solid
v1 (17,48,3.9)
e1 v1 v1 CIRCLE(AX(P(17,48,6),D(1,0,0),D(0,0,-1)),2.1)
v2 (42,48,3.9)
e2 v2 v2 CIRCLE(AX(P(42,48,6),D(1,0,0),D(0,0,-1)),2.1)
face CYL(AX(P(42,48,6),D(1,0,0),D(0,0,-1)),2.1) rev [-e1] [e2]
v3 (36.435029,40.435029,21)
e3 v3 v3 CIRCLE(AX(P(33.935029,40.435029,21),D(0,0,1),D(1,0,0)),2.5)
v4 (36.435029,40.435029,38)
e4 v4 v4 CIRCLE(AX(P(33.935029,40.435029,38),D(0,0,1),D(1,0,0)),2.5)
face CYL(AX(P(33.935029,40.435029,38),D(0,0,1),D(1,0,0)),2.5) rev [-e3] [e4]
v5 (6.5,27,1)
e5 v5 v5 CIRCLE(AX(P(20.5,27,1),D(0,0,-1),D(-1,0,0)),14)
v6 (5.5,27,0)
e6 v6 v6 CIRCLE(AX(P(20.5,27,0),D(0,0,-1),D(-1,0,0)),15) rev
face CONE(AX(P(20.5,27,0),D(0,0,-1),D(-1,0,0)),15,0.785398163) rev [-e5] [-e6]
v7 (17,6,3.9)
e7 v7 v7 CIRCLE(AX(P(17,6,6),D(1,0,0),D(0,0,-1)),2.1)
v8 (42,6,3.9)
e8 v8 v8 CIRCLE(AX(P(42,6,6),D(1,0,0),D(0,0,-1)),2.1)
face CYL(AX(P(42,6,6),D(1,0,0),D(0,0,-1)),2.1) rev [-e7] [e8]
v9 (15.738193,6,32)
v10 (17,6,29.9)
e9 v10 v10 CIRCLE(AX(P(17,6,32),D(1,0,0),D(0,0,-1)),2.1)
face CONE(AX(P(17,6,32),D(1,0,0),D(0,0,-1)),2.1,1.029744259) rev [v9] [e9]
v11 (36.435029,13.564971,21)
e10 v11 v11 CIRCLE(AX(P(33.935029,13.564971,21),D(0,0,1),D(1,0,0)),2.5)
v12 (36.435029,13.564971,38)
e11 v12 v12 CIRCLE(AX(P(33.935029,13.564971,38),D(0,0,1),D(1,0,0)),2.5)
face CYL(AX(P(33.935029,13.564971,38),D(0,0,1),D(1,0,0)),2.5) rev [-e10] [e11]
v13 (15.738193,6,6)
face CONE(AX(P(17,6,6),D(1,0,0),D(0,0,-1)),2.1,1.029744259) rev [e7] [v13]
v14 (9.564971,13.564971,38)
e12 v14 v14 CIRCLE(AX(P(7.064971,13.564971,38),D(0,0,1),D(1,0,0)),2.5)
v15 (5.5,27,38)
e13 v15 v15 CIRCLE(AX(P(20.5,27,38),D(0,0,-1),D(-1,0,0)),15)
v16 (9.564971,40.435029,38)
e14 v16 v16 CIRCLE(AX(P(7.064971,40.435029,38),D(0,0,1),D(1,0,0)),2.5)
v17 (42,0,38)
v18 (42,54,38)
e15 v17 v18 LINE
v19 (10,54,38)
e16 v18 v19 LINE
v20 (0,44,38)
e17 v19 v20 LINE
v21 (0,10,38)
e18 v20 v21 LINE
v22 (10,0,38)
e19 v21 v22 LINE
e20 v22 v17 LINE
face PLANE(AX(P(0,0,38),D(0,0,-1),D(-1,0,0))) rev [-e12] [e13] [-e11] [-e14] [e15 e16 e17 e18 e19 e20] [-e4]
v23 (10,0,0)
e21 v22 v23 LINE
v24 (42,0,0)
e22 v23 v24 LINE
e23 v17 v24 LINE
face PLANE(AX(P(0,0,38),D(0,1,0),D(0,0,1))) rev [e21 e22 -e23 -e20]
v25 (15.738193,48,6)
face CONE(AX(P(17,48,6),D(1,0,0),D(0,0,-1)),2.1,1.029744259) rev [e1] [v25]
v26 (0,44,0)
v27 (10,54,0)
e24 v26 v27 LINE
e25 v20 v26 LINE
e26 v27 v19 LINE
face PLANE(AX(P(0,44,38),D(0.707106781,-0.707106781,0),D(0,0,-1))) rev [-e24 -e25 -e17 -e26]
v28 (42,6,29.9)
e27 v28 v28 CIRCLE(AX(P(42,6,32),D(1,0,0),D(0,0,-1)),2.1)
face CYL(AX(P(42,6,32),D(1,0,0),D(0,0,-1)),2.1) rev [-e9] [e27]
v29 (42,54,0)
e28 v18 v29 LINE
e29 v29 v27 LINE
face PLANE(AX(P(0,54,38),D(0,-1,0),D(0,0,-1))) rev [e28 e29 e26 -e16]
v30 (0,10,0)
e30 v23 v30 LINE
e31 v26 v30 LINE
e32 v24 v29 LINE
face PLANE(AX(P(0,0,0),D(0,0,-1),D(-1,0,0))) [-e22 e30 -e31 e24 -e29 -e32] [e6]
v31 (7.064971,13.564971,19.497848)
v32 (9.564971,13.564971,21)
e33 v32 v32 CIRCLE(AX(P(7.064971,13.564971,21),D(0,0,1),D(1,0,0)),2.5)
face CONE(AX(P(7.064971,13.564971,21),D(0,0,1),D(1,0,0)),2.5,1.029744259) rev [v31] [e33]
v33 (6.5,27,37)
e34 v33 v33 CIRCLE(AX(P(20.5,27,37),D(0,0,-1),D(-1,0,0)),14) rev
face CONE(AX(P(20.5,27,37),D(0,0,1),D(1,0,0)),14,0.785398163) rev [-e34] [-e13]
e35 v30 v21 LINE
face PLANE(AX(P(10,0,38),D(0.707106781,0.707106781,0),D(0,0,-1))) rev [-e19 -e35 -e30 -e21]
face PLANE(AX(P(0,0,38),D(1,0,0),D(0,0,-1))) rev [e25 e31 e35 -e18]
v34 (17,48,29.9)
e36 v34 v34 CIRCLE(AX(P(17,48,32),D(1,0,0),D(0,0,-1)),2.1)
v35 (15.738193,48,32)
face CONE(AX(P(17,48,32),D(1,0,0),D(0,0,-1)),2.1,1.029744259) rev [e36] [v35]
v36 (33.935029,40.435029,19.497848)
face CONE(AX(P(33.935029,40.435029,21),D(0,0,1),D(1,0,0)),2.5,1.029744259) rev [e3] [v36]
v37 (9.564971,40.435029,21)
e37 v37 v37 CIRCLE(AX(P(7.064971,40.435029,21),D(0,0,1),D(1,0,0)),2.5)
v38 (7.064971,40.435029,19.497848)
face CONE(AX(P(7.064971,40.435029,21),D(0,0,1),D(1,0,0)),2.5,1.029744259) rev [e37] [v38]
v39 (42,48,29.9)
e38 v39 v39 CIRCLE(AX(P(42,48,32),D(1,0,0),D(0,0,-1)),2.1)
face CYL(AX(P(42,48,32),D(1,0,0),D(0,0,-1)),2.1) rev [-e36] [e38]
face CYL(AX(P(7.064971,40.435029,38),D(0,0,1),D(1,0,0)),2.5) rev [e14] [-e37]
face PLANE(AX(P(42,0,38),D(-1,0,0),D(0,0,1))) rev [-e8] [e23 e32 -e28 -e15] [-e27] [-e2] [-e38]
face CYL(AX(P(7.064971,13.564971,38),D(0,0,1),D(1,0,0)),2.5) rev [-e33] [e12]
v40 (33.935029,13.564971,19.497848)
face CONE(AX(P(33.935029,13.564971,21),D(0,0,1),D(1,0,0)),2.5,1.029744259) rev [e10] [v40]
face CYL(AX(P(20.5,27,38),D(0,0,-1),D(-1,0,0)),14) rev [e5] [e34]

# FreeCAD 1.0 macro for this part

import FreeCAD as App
import Part
import Sketcher


def edges_at(feature, points):
    """Names of the edges that pass closest to the given points."""
    edges = feature.Shape.Edges
    near = lambda p: min(range(len(edges)), key=lambda i: edges[i].distToShape(Part.Vertex(*p))[0])
    return sorted({f"Edge{near(p) + 1}" for p in points})

doc = App.newDocument("Part")
body = doc.addObject("PartDesign::Body", "Body")

# Sketch on XY plane
sketch1 = body.newObject("Sketcher::SketchObject", "Sketch")
sketch1.AttachmentSupport = (doc.getObject("XY_Plane"), [""])
sketch1.MapMode = "FlatFace"
sketch1.addGeometry([
    Part.LineSegment(App.Vector(0, 54, 0), App.Vector(0, 0, 0)),  # 0
    Part.LineSegment(App.Vector(0, 0, 0), App.Vector(42, 0, 0)),  # 1
    Part.LineSegment(App.Vector(42, 0, 0), App.Vector(42, 54, 0)),  # 2
    Part.LineSegment(App.Vector(42, 54, 0), App.Vector(0, 54, 0)),  # 3
    Part.Circle(App.Vector(20.5, 27, 0), App.Vector(0, 0, 1), 14),  # 4
], False)
sketch1.addConstraint([
    Sketcher.Constraint("Coincident", 0, 2, 1, 1),
    Sketcher.Constraint("Coincident", 1, 2, 2, 1),
    Sketcher.Constraint("Coincident", 2, 2, 3, 1),
    Sketcher.Constraint("Coincident", 3, 2, 0, 1),
    Sketcher.Constraint("Vertical", 0),
    Sketcher.Constraint("Horizontal", 1),
    Sketcher.Constraint("Vertical", 2),
    Sketcher.Constraint("Horizontal", 3),
    Sketcher.Constraint("Coincident", 0, 2, -1, 1),
    Sketcher.Constraint("Diameter", 4, 28.0),
    Sketcher.Constraint("DistanceX", 1, 1, 1, 2, 42.0),
    Sketcher.Constraint("DistanceY", 0, 2, 0, 1, 54.0),
    Sketcher.Constraint("DistanceY", -1, 1, 4, 3, 27.0),
    Sketcher.Constraint("DistanceX", -1, 1, 4, 3, 20.5),
])
pad1 = body.newObject("PartDesign::Pad", "Pad")
pad1.Profile = sketch1
pad1.Length = 38
doc.recompute()

chamfer = body.newObject("PartDesign::Chamfer", "Chamfer")
chamfer.Base = (pad1, edges_at(pad1, [(6.5, 27, 0), (6.5, 27, 38)]))
chamfer.Size = 1

# Sketch on XY plane
sketch2 = body.newObject("Sketcher::SketchObject", "Sketch001")
sketch2.AttachmentSupport = (doc.getObject("XY_Plane"), [""])
sketch2.MapMode = "FlatFace"
sketch2.AttachmentOffset = App.Placement(App.Vector(0, 0, 38), App.Rotation())
sketch2.addGeometry([
    Part.Circle(App.Vector(33.935029, 40.435029, 0), App.Vector(0, 0, 1), 2.5),
    Part.Circle(App.Vector(7.064971, 40.435029, 0), App.Vector(0, 0, 1), 2.5),
    Part.Circle(App.Vector(7.064971, 13.564971, 0), App.Vector(0, 0, 1), 2.5),
    Part.Circle(App.Vector(33.935029, 13.564971, 0), App.Vector(0, 0, 1), 2.5),
], False)
sketch2.addConstraint([
    Sketcher.Constraint("Equal", 0, 1),
    Sketcher.Constraint("Equal", 1, 2),
    Sketcher.Constraint("Equal", 2, 3),
    Sketcher.Constraint("Horizontal", 0, 3, 1, 3),
    Sketcher.Constraint("Horizontal", 2, 3, 3, 3),
    Sketcher.Constraint("Vertical", 1, 3, 2, 3),
    Sketcher.Constraint("Vertical", 0, 3, 3, 3),
    Sketcher.Constraint("Diameter", 0, 5.0),
    Sketcher.Constraint("DistanceX", -1, 1, 0, 3, 33.935029),
    Sketcher.Constraint("DistanceY", -1, 1, 0, 3, 40.435029),
    Sketcher.Constraint("DistanceX", -1, 1, 1, 3, 7.064971),
    Sketcher.Constraint("DistanceY", -1, 1, 2, 3, 13.564971),
])
doc.recompute()
hole = body.newObject("PartDesign::Hole", "Hole")
hole.Profile = sketch2
hole.ThreadType = "None"
hole.Diameter = 5
hole.DepthType = "Dimension"
hole.Depth = 17
hole.DrillPoint = "Angled"
hole.DrillPointAngle = 118

# Sketch on YZ plane
sketch3 = body.newObject("Sketcher::SketchObject", "Sketch002")
sketch3.AttachmentSupport = (doc.getObject("YZ_Plane"), [""])
sketch3.MapMode = "FlatFace"
sketch3.AttachmentOffset = App.Placement(App.Vector(0, 0, 42), App.Rotation())
sketch3.addGeometry([
    Part.Circle(App.Vector(48, 32, 0), App.Vector(0, 0, 1), 2.1),
    Part.Circle(App.Vector(48, 6, 0), App.Vector(0, 0, 1), 2.1),
    Part.Circle(App.Vector(6, 6, 0), App.Vector(0, 0, 1), 2.1),
    Part.Circle(App.Vector(6, 32, 0), App.Vector(0, 0, 1), 2.1),
], False)
sketch3.addConstraint([
    Sketcher.Constraint("Equal", 0, 1),
    Sketcher.Constraint("Equal", 1, 2),
    Sketcher.Constraint("Equal", 2, 3),
    Sketcher.Constraint("Horizontal", 1, 3, 2, 3),
    Sketcher.Constraint("Horizontal", 0, 3, 3, 3),
    Sketcher.Constraint("Vertical", 0, 3, 1, 3),
    Sketcher.Constraint("Vertical", 2, 3, 3, 3),
    Sketcher.Constraint("Diameter", 0, 4.2),
    Sketcher.Constraint("DistanceX", -1, 1, 0, 3, 48.0),
    Sketcher.Constraint("DistanceY", -1, 1, 0, 3, 32.0),
    Sketcher.Constraint("DistanceY", -1, 1, 1, 3, 6.0),
    Sketcher.Constraint("DistanceX", -1, 1, 2, 3, 6.0),
])
doc.recompute()
hole2 = body.newObject("PartDesign::Hole", "Hole001")
hole2.Profile = sketch3
hole2.ThreadType = "None"
hole2.Diameter = 4.2
hole2.DepthType = "Dimension"
hole2.Depth = 25
hole2.DrillPoint = "Angled"
hole2.DrillPointAngle = 118
doc.recompute()

chamfer2 = body.newObject("PartDesign::Chamfer", "Chamfer001")
chamfer2.Base = (hole2, edges_at(hole2, [(0, 54, 19), (0, 0, 19)]))
chamfer2.Size = 10

doc.recompute()
